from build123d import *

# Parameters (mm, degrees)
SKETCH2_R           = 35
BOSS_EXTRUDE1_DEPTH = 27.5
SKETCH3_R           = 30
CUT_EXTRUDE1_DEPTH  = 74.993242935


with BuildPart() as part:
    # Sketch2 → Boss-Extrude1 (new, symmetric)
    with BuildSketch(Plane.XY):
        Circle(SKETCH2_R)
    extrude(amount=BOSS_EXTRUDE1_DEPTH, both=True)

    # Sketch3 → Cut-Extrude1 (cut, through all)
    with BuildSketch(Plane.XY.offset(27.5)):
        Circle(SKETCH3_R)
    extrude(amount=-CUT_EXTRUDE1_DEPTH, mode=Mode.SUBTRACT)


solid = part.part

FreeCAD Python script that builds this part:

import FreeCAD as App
import Part
import Sketcher

V = App.Vector

doc = App.newDocument("Part")
params = doc.addObject("Spreadsheet::Sheet", "Params")
for row, (alias, value) in enumerate([
    ("sketch1_diameter", "70 mm"),
    ("pad1_length", "55 mm"),
    ("sketch2_diameter", "60 mm"),
], start=1):
    params.set(f"A{row}", alias)
    params.set(f"B{row}", "=" + value)
    params.setAlias(f"B{row}", alias)

body = doc.addObject("PartDesign::Body", "Body")

# Sketch on XY plane
sketch1 = body.newObject("Sketcher::SketchObject", "Sketch")
sketch1.AttachmentSupport = (doc.getObject("XY_Plane"), [""])
sketch1.MapMode = "FlatFace"
sketch1.addGeometry(Part.Circle(V(0, 0, 0), V(0, 0, 1), 35), False)
sketch1.addConstraint([
    Sketcher.Constraint("Coincident", 0, 3, -1, 1),
    Sketcher.Constraint("Diameter", 0, 70.0),
])
sketch1.setExpression("Constraints[1]", "Params.sketch1_diameter")
pad1 = body.newObject("PartDesign::Pad", "Pad")
pad1.Profile = sketch1
pad1.setExpression("Length", "Params.pad1_length")
pad1.Midplane = True

# Sketch on XY plane
sketch2 = body.newObject("Sketcher::SketchObject", "Sketch001")
sketch2.AttachmentSupport = (doc.getObject("XY_Plane"), [""])
sketch2.MapMode = "FlatFace"
sketch2.AttachmentOffset = App.Placement(V(0, 0, 27.5), App.Rotation())
sketch2.addGeometry(Part.Circle(V(0, 0, 0), V(0, 0, 1), 30), False)
sketch2.addConstraint([
    Sketcher.Constraint("Coincident", 0, 3, -1, 1),
    Sketcher.Constraint("Diameter", 0, 60.0),
])
sketch2.setExpression("Constraints[1]", "Params.sketch2_diameter")
pocket1 = body.newObject("PartDesign::Pocket", "Pocket")
pocket1.Profile = sketch2
pocket1.Type = "ThroughAll"

doc.recompute()
